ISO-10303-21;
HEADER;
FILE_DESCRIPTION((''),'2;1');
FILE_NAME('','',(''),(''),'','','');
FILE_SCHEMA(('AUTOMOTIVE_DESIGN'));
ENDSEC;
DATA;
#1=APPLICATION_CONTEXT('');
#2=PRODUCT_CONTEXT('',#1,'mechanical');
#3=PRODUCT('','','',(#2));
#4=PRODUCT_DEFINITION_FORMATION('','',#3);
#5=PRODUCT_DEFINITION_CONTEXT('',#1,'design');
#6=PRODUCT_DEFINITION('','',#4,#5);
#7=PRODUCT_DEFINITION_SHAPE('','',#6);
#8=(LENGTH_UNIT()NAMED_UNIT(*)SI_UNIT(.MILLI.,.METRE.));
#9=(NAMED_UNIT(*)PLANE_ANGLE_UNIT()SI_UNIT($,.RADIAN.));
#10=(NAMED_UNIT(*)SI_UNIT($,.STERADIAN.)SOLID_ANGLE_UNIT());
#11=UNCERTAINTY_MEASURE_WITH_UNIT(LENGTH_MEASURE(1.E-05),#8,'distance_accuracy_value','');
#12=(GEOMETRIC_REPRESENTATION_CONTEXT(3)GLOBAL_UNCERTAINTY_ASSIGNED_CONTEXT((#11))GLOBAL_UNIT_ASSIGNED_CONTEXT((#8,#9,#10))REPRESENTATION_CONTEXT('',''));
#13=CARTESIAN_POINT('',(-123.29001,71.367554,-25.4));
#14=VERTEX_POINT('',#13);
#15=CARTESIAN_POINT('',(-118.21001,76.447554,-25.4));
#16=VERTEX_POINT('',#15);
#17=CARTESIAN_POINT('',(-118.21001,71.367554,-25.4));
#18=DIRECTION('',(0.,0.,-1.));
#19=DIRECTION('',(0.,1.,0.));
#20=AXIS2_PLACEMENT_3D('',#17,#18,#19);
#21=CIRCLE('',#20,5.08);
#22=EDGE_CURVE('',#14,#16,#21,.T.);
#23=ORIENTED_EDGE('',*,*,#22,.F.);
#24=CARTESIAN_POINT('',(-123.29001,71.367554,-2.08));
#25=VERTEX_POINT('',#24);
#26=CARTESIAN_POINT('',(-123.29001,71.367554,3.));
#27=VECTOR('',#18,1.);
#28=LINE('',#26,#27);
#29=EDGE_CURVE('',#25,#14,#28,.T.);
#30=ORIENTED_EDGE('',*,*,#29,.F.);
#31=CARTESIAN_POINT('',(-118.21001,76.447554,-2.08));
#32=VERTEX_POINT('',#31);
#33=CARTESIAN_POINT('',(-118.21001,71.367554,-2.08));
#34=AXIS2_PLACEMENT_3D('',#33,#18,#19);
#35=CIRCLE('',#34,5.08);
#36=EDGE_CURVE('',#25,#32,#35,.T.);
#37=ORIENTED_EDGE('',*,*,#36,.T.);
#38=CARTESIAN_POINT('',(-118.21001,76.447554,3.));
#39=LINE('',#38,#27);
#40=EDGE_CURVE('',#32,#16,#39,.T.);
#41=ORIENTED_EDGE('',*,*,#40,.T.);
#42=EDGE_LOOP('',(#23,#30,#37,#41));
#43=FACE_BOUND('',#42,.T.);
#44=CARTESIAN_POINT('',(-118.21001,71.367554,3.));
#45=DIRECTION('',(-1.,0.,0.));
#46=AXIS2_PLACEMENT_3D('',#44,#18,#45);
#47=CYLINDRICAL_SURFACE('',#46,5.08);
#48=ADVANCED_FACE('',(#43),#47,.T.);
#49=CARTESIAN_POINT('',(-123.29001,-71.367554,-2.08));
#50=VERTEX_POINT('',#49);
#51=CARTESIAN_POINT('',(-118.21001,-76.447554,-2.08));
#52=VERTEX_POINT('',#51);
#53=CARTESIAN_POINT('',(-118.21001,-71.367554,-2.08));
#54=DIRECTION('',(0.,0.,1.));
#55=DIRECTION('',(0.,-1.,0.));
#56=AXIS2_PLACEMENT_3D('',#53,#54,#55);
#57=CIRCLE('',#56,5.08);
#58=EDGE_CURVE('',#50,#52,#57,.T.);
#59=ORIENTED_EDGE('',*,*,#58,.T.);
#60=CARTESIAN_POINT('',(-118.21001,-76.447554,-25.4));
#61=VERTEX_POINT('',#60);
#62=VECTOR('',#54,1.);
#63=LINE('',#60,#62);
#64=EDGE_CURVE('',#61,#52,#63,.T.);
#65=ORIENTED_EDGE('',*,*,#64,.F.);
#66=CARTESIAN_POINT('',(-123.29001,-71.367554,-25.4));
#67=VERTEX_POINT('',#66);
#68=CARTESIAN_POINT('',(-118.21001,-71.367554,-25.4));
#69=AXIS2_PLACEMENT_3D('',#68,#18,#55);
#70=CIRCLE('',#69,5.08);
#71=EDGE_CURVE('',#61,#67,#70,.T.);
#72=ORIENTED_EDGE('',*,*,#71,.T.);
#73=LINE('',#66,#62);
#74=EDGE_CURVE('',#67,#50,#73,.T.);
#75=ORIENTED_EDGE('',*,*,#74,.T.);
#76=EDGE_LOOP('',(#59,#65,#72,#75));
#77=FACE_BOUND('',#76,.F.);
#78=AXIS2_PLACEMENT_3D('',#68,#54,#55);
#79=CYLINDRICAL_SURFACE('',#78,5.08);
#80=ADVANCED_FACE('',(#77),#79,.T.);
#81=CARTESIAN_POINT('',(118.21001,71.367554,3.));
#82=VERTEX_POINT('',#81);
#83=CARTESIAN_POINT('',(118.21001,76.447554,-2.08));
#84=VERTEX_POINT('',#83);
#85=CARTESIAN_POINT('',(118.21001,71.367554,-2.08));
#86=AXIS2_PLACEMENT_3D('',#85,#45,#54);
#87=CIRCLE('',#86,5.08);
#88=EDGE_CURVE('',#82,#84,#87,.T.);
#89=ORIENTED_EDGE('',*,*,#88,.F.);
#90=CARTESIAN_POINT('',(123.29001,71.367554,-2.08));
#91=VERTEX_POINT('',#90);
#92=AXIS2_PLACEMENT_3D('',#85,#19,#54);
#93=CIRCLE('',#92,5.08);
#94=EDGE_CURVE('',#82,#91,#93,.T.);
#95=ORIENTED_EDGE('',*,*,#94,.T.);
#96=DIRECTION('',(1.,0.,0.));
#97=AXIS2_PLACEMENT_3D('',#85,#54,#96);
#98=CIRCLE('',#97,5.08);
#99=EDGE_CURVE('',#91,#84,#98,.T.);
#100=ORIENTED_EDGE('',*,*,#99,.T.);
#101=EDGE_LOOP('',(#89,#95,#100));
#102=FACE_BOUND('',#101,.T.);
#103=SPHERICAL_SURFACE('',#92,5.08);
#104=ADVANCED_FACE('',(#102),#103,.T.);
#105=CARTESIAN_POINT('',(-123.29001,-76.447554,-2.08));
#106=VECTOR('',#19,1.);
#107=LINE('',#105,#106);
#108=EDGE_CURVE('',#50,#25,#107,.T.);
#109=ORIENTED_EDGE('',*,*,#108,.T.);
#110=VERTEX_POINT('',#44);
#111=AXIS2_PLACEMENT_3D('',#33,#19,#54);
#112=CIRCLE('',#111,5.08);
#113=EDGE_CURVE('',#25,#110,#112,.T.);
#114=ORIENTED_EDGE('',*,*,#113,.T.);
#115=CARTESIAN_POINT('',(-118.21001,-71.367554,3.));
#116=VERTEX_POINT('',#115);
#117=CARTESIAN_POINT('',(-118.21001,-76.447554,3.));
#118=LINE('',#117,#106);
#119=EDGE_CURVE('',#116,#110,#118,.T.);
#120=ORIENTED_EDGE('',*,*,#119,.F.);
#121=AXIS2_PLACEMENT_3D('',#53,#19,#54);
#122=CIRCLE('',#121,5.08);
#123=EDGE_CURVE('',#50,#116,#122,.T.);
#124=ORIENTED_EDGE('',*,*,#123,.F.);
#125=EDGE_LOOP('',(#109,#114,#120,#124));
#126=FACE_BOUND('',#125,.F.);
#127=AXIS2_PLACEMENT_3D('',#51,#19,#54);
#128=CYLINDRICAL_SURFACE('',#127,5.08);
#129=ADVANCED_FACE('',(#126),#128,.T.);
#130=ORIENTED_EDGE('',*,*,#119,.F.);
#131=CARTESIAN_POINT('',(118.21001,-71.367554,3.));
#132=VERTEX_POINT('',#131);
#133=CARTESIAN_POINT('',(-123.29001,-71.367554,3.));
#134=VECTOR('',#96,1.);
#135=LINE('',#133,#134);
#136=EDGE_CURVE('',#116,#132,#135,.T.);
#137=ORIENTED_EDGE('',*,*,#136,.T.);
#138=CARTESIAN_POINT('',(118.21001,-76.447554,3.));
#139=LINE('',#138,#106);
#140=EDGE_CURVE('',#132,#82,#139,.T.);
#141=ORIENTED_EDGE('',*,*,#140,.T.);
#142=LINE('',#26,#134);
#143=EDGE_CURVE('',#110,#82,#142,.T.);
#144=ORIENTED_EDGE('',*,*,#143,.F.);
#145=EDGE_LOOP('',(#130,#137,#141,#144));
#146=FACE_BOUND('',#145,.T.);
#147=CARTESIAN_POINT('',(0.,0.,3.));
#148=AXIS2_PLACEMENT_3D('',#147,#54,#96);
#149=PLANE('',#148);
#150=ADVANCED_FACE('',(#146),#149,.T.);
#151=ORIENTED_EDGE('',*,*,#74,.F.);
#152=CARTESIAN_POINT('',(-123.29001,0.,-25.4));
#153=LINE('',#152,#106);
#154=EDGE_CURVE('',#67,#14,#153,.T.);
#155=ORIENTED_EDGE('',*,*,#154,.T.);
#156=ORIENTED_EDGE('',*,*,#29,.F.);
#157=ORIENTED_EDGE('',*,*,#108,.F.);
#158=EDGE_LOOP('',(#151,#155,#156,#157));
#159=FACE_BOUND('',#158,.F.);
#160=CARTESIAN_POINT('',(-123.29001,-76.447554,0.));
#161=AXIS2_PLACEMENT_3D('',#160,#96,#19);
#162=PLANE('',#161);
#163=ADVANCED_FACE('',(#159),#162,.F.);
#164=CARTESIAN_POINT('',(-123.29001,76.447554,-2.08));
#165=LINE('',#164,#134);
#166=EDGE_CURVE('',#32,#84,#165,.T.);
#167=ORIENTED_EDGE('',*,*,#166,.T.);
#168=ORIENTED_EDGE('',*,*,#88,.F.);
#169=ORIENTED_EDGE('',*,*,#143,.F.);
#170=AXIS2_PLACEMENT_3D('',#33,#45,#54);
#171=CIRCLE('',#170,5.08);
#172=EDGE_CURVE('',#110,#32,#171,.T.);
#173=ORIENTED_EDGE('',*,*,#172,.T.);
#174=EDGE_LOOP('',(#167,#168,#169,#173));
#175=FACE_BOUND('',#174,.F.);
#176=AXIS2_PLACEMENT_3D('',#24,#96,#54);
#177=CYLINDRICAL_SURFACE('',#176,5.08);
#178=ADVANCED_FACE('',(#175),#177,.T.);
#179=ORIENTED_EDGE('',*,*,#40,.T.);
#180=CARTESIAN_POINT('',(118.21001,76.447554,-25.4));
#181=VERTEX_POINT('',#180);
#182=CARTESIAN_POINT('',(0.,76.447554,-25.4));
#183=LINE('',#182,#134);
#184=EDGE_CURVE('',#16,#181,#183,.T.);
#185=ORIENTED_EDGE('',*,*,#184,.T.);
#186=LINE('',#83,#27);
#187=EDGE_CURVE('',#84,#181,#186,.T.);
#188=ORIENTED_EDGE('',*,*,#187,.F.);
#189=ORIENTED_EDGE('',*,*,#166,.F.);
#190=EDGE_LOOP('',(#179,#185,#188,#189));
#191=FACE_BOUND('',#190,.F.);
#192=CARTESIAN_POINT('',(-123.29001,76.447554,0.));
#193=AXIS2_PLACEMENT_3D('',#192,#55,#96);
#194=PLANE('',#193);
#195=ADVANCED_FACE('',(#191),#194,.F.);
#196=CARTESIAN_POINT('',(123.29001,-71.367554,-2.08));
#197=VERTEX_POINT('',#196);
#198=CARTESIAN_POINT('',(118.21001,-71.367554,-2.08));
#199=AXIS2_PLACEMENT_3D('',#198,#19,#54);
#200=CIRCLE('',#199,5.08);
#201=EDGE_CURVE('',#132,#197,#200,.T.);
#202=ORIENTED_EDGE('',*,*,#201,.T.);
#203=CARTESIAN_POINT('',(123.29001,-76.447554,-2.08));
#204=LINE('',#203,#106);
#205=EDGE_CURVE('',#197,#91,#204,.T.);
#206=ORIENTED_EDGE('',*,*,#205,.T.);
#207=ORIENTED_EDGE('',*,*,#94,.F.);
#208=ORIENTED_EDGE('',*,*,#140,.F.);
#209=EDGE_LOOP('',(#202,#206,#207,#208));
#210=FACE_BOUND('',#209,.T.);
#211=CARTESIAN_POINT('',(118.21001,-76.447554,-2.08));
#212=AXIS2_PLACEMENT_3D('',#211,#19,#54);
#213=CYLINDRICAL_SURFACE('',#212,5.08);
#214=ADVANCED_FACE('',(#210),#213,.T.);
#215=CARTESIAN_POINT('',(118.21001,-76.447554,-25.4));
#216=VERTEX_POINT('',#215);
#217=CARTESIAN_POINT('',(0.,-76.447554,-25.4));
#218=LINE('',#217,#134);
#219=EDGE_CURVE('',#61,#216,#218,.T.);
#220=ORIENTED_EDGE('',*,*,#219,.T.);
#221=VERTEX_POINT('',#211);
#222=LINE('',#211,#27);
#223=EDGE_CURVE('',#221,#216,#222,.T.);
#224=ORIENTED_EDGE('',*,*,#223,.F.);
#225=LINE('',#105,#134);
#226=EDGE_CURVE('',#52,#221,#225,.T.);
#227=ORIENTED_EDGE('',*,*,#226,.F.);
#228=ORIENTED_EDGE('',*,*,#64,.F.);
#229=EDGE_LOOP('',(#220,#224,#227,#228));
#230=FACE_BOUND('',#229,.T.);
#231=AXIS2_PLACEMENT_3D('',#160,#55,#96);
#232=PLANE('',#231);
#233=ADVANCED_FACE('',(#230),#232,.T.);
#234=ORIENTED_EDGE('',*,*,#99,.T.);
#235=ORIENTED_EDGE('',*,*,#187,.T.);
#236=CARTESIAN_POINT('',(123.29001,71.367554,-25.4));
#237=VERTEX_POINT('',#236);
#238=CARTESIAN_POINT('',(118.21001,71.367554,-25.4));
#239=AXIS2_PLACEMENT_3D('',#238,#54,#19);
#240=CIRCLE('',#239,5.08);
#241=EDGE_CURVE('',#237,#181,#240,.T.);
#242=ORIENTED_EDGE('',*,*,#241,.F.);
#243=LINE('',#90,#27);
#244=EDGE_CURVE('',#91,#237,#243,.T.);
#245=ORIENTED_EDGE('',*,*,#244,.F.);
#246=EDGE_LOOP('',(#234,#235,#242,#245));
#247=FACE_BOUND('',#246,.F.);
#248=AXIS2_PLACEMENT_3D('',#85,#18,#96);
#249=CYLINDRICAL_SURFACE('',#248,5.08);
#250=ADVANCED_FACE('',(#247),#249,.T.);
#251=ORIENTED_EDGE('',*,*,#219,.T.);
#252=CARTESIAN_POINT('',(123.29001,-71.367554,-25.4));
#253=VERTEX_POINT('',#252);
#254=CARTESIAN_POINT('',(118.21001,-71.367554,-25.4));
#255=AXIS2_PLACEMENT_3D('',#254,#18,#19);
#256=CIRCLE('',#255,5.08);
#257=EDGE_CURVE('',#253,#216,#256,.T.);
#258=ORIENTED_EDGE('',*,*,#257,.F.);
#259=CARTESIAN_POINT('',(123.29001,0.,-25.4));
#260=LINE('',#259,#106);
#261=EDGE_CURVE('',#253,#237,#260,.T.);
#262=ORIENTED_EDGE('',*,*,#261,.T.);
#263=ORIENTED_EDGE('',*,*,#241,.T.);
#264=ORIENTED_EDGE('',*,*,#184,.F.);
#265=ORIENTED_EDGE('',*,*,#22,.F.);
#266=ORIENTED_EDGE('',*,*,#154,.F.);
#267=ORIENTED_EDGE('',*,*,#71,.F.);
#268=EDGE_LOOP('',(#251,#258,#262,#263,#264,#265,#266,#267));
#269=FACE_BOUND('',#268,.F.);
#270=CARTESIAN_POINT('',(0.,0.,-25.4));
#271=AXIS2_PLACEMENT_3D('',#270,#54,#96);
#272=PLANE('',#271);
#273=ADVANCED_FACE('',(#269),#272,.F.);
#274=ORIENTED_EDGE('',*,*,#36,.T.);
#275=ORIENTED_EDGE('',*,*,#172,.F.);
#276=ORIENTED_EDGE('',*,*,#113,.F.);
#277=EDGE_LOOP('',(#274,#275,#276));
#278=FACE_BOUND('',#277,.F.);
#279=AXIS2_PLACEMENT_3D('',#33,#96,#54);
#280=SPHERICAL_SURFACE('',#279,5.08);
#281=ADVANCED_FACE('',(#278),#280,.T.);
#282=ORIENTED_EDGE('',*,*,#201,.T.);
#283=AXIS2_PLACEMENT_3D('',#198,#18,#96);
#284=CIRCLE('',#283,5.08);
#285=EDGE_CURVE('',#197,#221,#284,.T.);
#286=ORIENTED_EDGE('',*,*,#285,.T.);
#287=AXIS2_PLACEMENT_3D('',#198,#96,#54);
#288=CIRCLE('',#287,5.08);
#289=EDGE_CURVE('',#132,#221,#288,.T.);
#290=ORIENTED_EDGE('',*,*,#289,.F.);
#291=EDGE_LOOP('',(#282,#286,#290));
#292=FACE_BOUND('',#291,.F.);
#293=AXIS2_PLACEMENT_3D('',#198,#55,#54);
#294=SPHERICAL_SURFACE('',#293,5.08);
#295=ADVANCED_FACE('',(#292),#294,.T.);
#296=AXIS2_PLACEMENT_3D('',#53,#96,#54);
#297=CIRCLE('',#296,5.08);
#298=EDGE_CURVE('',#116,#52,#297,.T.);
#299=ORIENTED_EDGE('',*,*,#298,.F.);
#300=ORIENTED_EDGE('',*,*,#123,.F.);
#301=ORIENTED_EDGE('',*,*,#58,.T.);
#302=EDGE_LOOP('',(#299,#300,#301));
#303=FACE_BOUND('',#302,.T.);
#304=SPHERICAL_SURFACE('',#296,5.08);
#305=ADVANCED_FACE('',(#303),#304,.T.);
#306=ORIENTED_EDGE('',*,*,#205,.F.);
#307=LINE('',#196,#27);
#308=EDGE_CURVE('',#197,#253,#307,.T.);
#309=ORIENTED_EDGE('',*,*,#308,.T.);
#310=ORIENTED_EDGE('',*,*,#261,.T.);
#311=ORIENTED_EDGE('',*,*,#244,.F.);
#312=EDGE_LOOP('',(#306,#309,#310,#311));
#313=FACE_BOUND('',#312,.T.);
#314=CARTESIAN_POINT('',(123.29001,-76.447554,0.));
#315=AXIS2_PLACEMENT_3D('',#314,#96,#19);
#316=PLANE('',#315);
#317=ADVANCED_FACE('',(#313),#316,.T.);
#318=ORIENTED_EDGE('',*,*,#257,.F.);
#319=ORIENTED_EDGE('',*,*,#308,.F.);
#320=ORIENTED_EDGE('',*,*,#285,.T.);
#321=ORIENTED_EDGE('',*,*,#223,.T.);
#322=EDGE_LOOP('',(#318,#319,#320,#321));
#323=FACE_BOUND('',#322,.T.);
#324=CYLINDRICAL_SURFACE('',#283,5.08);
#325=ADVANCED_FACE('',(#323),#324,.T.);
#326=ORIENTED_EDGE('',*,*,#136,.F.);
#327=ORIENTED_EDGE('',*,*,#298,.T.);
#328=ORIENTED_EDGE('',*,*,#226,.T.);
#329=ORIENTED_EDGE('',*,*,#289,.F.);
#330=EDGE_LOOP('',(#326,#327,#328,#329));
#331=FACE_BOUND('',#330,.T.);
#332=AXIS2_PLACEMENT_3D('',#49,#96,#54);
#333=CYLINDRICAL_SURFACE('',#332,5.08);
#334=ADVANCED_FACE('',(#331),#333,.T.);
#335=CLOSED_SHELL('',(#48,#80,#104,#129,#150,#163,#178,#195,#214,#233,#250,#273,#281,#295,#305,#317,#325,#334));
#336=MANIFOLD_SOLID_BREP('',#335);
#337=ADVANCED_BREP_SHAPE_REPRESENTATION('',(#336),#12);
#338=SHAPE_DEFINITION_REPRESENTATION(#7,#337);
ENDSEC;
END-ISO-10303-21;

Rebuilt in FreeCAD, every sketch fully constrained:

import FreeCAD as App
import Part
import Sketcher
from FreeCAD import Vector


def edges_at(feature, points):
    """Names of the edges that pass closest to the given points."""
    edges = feature.Shape.Edges
    near = lambda p: min(range(len(edges)), key=lambda i: edges[i].distToShape(Part.Vertex(*p))[0])
    return sorted({f"Edge{near(p) + 1}" for p in points})


def add_polygon(sketch, points):
    """Adds a closed chain of lines whose ends are joined by coincident constraints."""
    first, n = sketch.GeometryCount, len(points)
    for a, b in zip(points, points[1:] + points[:1]):
        sketch.addGeometry(Part.LineSegment(App.Vector(*a, 0), App.Vector(*b, 0)), False)
    for i in range(n):
        sketch.addConstraint(Sketcher.Constraint("Coincident", first + i, 2, first + (i + 1) % n, 1))

doc = App.newDocument("Part")
body = doc.addObject("PartDesign::Body", "Body")

# Sketch on XY plane
sketch1 = doc.addObject("Sketcher::SketchObject", "Sketch")
body.addObject(sketch1)
sketch1.AttachmentSupport = (doc.XY_Plane, [""])
sketch1.MapMode = "FlatFace"
add_polygon(sketch1, [(-123, 76), (-123, -76), (123, -76), (123, 76)])  # lines 0-3
sketch1.addConstraint(Sketcher.Constraint("Vertical", 0))
sketch1.addConstraint(Sketcher.Constraint("Horizontal", 1))
sketch1.addConstraint(Sketcher.Constraint("Vertical", 2))
sketch1.addConstraint(Sketcher.Constraint("Horizontal", 3))
sketch1.addConstraint(Sketcher.Constraint("Symmetric", 0, 2, 2, 2, -1, 1))
sketch1.addConstraint(Sketcher.Constraint("DistanceX", 1, 1, 1, 2, 246.58002))
sketch1.addConstraint(Sketcher.Constraint("DistanceY", 0, 2, 0, 1, 152.895108))
pad1 = doc.addObject("PartDesign::Pad", "Pad")
body.addObject(pad1)
pad1.Profile = sketch1
pad1.Type = "TwoLengths"
pad1.Length = 3
pad1.Length2 = 25.4
doc.recompute()

fillet = doc.addObject("PartDesign::Fillet", "Fillet")
body.addObject(fillet)
fillet.Base = (pad1, edges_at(pad1, [(123.29, 0, 3)]))
fillet.Radius = 5.08
doc.recompute()

fillet2 = doc.addObject("PartDesign::Fillet", "Fillet001")
body.addObject(fillet2)
fillet2.Base = (fillet, edges_at(fillet, [
    (-2.54, -76.448, 3),
    (-2.54, 76.448, 3),
    (-123.29, 0, 3),
    (123.29, -76.448, -13.74),
    (123.29, 76.448, -13.74),
    (-123.29, -76.448, -11.2),
    (-123.29, 76.448, -11.2),
]))
fillet2.Radius = 5.08

doc.recompute()
